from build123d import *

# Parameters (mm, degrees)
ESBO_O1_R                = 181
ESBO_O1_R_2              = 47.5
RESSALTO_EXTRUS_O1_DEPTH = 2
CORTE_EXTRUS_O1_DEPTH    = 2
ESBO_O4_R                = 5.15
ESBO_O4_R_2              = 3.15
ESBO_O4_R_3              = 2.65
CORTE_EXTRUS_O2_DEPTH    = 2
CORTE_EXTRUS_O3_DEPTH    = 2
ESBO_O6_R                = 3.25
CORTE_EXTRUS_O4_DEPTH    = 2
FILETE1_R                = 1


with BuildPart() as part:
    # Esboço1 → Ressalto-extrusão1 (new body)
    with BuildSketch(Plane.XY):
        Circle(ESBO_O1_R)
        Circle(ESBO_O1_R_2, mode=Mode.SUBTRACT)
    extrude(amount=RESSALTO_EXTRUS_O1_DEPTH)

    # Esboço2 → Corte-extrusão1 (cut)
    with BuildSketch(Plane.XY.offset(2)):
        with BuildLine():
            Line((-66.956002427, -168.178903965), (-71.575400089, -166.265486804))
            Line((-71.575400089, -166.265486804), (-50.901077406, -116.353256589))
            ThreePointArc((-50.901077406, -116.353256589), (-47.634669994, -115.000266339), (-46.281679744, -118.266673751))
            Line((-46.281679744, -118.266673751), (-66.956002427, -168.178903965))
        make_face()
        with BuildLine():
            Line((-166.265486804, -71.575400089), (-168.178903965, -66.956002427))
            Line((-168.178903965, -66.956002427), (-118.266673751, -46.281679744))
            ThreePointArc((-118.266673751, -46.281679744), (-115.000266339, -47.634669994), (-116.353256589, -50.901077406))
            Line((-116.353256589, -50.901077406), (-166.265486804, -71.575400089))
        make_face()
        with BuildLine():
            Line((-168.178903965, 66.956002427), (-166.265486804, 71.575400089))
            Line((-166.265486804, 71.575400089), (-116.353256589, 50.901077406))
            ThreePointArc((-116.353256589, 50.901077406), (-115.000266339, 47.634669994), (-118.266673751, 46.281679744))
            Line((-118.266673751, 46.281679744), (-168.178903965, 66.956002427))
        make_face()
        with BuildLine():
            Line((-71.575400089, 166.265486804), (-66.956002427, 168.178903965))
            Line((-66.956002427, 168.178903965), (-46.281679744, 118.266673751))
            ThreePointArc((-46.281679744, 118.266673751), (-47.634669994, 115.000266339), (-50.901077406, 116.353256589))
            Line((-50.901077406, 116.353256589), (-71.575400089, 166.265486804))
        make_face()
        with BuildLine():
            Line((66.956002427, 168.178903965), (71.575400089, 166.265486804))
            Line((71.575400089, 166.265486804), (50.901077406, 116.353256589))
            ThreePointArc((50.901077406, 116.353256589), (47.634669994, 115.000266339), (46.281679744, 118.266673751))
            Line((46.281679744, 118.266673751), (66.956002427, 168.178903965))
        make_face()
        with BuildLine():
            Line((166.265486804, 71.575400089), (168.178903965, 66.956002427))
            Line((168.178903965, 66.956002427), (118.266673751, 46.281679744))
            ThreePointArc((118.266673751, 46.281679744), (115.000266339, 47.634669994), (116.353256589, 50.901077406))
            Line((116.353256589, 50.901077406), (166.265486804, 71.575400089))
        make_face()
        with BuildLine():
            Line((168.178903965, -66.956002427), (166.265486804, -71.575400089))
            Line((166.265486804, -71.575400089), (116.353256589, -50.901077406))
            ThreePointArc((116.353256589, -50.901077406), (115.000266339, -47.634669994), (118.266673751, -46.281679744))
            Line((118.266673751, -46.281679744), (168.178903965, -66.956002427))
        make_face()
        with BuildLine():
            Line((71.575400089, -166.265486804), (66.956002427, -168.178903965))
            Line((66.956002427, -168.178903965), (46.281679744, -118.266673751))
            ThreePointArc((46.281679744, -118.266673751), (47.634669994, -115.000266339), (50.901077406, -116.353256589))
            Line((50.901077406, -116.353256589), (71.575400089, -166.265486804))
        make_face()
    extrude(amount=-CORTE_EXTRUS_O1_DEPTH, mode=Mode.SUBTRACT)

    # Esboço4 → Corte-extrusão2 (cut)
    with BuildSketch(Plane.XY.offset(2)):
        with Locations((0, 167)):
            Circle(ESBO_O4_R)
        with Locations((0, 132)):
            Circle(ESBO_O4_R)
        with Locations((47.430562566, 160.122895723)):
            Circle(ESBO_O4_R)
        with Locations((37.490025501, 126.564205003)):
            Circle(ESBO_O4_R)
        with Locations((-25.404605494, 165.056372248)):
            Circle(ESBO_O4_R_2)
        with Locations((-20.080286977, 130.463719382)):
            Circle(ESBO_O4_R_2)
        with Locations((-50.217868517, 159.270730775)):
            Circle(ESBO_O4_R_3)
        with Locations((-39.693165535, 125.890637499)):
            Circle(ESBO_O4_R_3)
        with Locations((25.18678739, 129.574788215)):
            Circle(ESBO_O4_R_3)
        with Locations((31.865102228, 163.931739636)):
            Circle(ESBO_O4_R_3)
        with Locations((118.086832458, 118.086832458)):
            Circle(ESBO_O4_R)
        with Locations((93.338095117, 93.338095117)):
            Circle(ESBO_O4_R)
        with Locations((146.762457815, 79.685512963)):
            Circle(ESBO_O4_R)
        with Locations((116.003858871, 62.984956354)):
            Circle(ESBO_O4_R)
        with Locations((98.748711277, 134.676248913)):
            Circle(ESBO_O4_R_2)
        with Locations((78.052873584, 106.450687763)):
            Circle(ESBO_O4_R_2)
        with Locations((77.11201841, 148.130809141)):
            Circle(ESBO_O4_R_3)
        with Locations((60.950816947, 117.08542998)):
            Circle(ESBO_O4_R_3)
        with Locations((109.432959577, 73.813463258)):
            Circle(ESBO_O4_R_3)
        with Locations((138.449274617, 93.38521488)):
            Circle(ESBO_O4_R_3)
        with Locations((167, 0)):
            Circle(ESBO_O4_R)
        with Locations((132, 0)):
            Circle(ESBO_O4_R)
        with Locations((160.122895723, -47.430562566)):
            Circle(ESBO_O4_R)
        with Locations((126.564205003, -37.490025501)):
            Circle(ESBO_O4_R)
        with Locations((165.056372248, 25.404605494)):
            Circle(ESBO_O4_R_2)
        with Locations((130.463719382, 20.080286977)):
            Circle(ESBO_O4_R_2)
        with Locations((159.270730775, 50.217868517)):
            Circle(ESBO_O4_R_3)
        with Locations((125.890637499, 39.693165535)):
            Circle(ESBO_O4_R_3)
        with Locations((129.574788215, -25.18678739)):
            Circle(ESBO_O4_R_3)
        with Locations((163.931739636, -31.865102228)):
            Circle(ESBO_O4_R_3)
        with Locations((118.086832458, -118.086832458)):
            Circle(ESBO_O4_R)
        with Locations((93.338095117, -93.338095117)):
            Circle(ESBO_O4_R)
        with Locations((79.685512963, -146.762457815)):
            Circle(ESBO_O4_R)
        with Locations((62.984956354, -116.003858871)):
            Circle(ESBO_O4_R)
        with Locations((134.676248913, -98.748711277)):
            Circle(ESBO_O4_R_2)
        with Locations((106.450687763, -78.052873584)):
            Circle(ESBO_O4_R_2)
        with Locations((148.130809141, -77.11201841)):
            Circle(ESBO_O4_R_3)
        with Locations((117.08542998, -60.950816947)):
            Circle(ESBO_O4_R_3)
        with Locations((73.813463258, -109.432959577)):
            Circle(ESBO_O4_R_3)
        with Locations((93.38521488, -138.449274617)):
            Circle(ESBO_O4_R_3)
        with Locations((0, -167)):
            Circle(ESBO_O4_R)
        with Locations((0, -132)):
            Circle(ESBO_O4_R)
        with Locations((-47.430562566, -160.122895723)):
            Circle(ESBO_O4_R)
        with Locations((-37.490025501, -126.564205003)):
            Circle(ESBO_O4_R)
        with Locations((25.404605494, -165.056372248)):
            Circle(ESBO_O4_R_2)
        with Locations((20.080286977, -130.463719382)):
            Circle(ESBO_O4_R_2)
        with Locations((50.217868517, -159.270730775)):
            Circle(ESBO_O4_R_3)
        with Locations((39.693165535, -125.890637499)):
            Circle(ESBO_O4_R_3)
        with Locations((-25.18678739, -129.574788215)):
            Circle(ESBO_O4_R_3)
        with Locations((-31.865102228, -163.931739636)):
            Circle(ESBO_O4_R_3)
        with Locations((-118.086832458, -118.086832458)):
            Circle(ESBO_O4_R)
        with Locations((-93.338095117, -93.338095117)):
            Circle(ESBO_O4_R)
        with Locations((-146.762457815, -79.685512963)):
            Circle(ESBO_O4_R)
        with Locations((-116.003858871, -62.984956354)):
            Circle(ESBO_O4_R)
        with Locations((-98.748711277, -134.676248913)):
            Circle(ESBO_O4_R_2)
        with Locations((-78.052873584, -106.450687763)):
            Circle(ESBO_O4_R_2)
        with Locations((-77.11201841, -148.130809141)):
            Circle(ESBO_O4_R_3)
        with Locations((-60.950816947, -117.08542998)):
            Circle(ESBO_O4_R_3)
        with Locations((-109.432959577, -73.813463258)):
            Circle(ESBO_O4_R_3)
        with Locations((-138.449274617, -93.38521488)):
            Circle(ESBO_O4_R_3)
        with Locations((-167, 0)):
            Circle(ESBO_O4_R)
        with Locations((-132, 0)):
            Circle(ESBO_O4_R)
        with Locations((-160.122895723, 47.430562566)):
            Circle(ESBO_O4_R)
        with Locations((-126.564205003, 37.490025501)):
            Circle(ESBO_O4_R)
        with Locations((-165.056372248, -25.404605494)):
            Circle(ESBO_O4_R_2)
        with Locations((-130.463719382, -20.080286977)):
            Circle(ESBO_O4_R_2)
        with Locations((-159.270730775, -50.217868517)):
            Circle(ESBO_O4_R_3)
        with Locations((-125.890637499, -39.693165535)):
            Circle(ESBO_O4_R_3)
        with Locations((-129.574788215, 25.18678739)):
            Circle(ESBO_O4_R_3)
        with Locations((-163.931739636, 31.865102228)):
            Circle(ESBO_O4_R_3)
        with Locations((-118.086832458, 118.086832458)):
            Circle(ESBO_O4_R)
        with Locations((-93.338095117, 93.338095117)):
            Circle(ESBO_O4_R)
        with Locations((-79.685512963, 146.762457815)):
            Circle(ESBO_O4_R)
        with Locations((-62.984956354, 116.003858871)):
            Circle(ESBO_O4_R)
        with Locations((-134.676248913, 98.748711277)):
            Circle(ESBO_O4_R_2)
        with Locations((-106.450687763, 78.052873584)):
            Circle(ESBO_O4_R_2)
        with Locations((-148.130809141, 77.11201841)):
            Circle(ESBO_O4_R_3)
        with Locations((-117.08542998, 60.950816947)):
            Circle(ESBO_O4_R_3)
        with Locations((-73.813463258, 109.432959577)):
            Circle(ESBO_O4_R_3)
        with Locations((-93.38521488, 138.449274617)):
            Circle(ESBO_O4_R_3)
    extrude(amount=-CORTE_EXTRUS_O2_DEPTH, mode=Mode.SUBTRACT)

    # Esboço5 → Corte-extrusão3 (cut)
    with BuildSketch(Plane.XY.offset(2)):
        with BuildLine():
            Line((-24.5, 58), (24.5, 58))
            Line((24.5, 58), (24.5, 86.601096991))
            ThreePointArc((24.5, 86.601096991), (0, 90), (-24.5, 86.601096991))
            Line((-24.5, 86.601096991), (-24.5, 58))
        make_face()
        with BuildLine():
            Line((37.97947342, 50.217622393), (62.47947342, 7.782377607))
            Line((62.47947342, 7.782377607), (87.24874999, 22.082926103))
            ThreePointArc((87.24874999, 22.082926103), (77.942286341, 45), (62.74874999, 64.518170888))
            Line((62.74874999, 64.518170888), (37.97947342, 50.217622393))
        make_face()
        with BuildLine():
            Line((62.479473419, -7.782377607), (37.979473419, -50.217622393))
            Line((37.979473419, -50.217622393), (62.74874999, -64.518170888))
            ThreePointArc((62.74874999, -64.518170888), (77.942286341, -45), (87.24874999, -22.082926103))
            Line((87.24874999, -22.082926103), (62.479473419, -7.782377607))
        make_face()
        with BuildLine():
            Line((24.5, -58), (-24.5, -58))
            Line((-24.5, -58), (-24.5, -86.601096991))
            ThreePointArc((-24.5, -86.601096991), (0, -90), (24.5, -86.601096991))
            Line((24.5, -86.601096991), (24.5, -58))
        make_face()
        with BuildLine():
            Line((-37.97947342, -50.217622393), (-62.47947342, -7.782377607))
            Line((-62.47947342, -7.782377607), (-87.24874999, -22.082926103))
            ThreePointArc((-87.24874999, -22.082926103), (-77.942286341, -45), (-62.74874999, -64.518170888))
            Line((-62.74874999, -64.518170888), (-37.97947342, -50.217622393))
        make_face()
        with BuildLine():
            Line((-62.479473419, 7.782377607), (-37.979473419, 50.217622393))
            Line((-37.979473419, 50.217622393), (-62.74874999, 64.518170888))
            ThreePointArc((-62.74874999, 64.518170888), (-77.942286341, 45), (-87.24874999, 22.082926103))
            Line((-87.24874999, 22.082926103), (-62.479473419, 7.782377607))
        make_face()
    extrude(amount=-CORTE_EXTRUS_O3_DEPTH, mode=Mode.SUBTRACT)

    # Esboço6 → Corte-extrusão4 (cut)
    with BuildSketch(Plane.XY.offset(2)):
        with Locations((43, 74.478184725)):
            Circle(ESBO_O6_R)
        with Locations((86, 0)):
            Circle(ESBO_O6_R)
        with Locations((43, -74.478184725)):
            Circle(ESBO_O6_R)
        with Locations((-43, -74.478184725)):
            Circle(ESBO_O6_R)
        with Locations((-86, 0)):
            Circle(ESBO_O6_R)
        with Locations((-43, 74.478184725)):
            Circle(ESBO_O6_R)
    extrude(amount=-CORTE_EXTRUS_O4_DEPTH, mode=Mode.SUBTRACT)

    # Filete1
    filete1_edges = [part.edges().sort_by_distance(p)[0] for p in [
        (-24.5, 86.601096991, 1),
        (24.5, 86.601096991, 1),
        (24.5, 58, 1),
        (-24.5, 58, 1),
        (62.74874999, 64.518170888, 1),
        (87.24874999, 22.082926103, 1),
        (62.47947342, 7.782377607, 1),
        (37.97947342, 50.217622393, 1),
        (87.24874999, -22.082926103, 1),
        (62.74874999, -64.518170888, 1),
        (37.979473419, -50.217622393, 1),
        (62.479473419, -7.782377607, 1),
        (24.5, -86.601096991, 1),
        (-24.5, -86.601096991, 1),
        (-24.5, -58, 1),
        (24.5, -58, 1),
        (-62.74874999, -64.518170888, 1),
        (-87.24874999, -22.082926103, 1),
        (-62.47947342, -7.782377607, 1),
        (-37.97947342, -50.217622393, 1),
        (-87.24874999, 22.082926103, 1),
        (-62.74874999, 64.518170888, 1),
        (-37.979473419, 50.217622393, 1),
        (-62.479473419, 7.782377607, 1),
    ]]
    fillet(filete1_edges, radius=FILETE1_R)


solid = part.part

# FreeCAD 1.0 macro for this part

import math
import FreeCAD as App
import Part
import Sketcher
from FreeCAD import Vector
Q = App.Units.Quantity


def edges_at(feature, points):
    """Names of the edges that pass closest to the given points."""
    edges = feature.Shape.Edges
    near = lambda p: min(range(len(edges)), key=lambda i: edges[i].distToShape(Part.Vertex(*p))[0])
    return sorted({f"Edge{near(p) + 1}" for p in points})

doc = App.newDocument("Part")
body = doc.addObject("PartDesign::Body", "Body")

sketch1 = body.newObject("Sketcher::SketchObject", "Sketch")
sketch1.AttachmentSupport = (doc.getObject("XY_Plane"), [""])
sketch1.MapMode = "FlatFace"
sketch1.addGeometry(Part.Circle(Vector(0, 0, 0), Vector(0, 0, 1), 181), False)
sketch1.addGeometry(Part.Circle(Vector(0, 0, 0), Vector(0, 0, 1), 48), False)
sketch1.addConstraint(Sketcher.Constraint("Coincident", 0, 3, -1, 1))
sketch1.addConstraint(Sketcher.Constraint("Coincident", 1, 3, -1, 1))
sketch1.addConstraint(Sketcher.Constraint("Diameter", 0, Q("362 mm")))
sketch1.addConstraint(Sketcher.Constraint("Diameter", 1, Q("95 mm")))
pad1 = body.newObject("PartDesign::Pad", "Pad")
pad1.Profile = sketch1
pad1.Length = 2

sketch2 = body.newObject("Sketcher::SketchObject", "Sketch001")
sketch2.AttachmentSupport = (doc.getObject("XY_Plane"), [""])
sketch2.MapMode = "FlatFace"
sketch2.AttachmentOffset = App.Placement(Vector(0, 0, 2), App.Rotation())
sketch2.addGeometry(Part.LineSegment(Vector(-71.6, -166.3, 0), Vector(-67, -168.2, 0)), False)
sketch2.addGeometry(Part.LineSegment(Vector(-67, -168.2, 0), Vector(-46.3, -118.3, 0)), False)
sketch2.addGeometry(Part.ArcOfCircle(Part.Circle(Vector(-48.6, -117.3, 0), Vector(0, 0, 1), 2.5), math.radians(-23), math.radians(157)), False)
sketch2.addGeometry(Part.LineSegment(Vector(-50.9, -116.4, 0), Vector(-71.6, -166.3, 0)), False)
sketch2.addGeometry(Part.LineSegment(Vector(-168.2, -67, 0), Vector(-166.3, -71.6, 0)), False)
sketch2.addGeometry(Part.LineSegment(Vector(-166.3, -71.6, 0), Vector(-116.4, -50.9, 0)), False)
sketch2.addGeometry(Part.ArcOfCircle(Part.Circle(Vector(-117.3, -48.6, 0), Vector(0, 0, 1), 2.5), math.radians(-67), math.radians(113)), False)
sketch2.addGeometry(Part.LineSegment(Vector(-118.3, -46.3, 0), Vector(-168.2, -67, 0)), False)
sketch2.addGeometry(Part.LineSegment(Vector(-166.3, 71.6, 0), Vector(-168.2, 67, 0)), False)
sketch2.addGeometry(Part.LineSegment(Vector(-168.2, 67, 0), Vector(-118.3, 46.3, 0)), False)
sketch2.addGeometry(Part.ArcOfCircle(Part.Circle(Vector(-117.3, 48.6, 0), Vector(0, 0, 1), 2.5), math.radians(-113), math.radians(67)), False)
sketch2.addGeometry(Part.LineSegment(Vector(-116.4, 50.9, 0), Vector(-166.3, 71.6, 0)), False)
sketch2.addGeometry(Part.LineSegment(Vector(-67, 168.2, 0), Vector(-71.6, 166.3, 0)), False)
sketch2.addGeometry(Part.LineSegment(Vector(-71.6, 166.3, 0), Vector(-50.9, 116.4, 0)), False)
sketch2.addGeometry(Part.ArcOfCircle(Part.Circle(Vector(-48.6, 117.3, 0), Vector(0, 0, 1), 2.5), math.radians(-157), math.radians(23)), False)
sketch2.addGeometry(Part.LineSegment(Vector(-46.3, 118.3, 0), Vector(-67, 168.2, 0)), False)
sketch2.addGeometry(Part.LineSegment(Vector(71.6, 166.3, 0), Vector(67, 168.2, 0)), False)
sketch2.addGeometry(Part.LineSegment(Vector(67, 168.2, 0), Vector(46.3, 118.3, 0)), False)
sketch2.addGeometry(Part.ArcOfCircle(Part.Circle(Vector(48.6, 117.3, 0), Vector(0, 0, 1), 2.5), math.radians(157), math.radians(337)), False)
sketch2.addGeometry(Part.LineSegment(Vector(50.9, 116.4, 0), Vector(71.6, 166.3, 0)), False)
sketch2.addGeometry(Part.LineSegment(Vector(168.2, 67, 0), Vector(166.3, 71.6, 0)), False)
sketch2.addGeometry(Part.LineSegment(Vector(166.3, 71.6, 0), Vector(116.4, 50.9, 0)), False)
sketch2.addGeometry(Part.ArcOfCircle(Part.Circle(Vector(117.3, 48.6, 0), Vector(0, 0, 1), 2.5), math.radians(113), math.radians(293)), False)
sketch2.addGeometry(Part.LineSegment(Vector(118.3, 46.3, 0), Vector(168.2, 67, 0)), False)
sketch2.addGeometry(Part.LineSegment(Vector(166.3, -71.6, 0), Vector(168.2, -67, 0)), False)
sketch2.addGeometry(Part.LineSegment(Vector(168.2, -67, 0), Vector(118.3, -46.3, 0)), False)
sketch2.addGeometry(Part.ArcOfCircle(Part.Circle(Vector(117.3, -48.6, 0), Vector(0, 0, 1), 2.5), math.radians(67), math.radians(247)), False)
sketch2.addGeometry(Part.LineSegment(Vector(116.4, -50.9, 0), Vector(166.3, -71.6, 0)), False)
sketch2.addGeometry(Part.LineSegment(Vector(67, -168.2, 0), Vector(71.6, -166.3, 0)), False)
sketch2.addGeometry(Part.LineSegment(Vector(71.6, -166.3, 0), Vector(50.9, -116.4, 0)), False)
sketch2.addGeometry(Part.ArcOfCircle(Part.Circle(Vector(48.6, -117.3, 0), Vector(0, 0, 1), 2.5), math.radians(23), math.radians(203)), False)
sketch2.addGeometry(Part.LineSegment(Vector(46.3, -118.3, 0), Vector(67, -168.2, 0)), False)
sketch2.addConstraint(Sketcher.Constraint("Coincident", 0, 2, 1, 1))
sketch2.addConstraint(Sketcher.Constraint("Tangent", 1, 2, 2, 1))
sketch2.addConstraint(Sketcher.Constraint("Tangent", 2, 2, 3, 1))
sketch2.addConstraint(Sketcher.Constraint("Coincident", 3, 2, 0, 1))
sketch2.addConstraint(Sketcher.Constraint("Coincident", 4, 2, 5, 1))
sketch2.addConstraint(Sketcher.Constraint("Tangent", 5, 2, 6, 1))
sketch2.addConstraint(Sketcher.Constraint("Tangent", 6, 2, 7, 1))
sketch2.addConstraint(Sketcher.Constraint("Coincident", 7, 2, 4, 1))
sketch2.addConstraint(Sketcher.Constraint("Coincident", 8, 2, 9, 1))
sketch2.addConstraint(Sketcher.Constraint("Tangent", 9, 2, 10, 1))
sketch2.addConstraint(Sketcher.Constraint("Tangent", 10, 2, 11, 1))
sketch2.addConstraint(Sketcher.Constraint("Coincident", 11, 2, 8, 1))
sketch2.addConstraint(Sketcher.Constraint("Coincident", 12, 2, 13, 1))
sketch2.addConstraint(Sketcher.Constraint("Tangent", 13, 2, 14, 1))
sketch2.addConstraint(Sketcher.Constraint("Tangent", 14, 2, 15, 1))
sketch2.addConstraint(Sketcher.Constraint("Coincident", 15, 2, 12, 1))
sketch2.addConstraint(Sketcher.Constraint("Coincident", 16, 2, 17, 1))
sketch2.addConstraint(Sketcher.Constraint("Tangent", 17, 2, 18, 1))
sketch2.addConstraint(Sketcher.Constraint("Tangent", 18, 2, 19, 1))
sketch2.addConstraint(Sketcher.Constraint("Coincident", 19, 2, 16, 1))
sketch2.addConstraint(Sketcher.Constraint("Coincident", 20, 2, 21, 1))
sketch2.addConstraint(Sketcher.Constraint("Tangent", 21, 2, 22, 1))
sketch2.addConstraint(Sketcher.Constraint("Tangent", 22, 2, 23, 1))
sketch2.addConstraint(Sketcher.Constraint("Coincident", 23, 2, 20, 1))
sketch2.addConstraint(Sketcher.Constraint("Coincident", 24, 2, 25, 1))
sketch2.addConstraint(Sketcher.Constraint("Tangent", 25, 2, 26, 1))
sketch2.addConstraint(Sketcher.Constraint("Tangent", 26, 2, 27, 1))
sketch2.addConstraint(Sketcher.Constraint("Coincident", 27, 2, 24, 1))
sketch2.addConstraint(Sketcher.Constraint("Coincident", 28, 2, 29, 1))
sketch2.addConstraint(Sketcher.Constraint("Tangent", 29, 2, 30, 1))
sketch2.addConstraint(Sketcher.Constraint("Tangent", 30, 2, 31, 1))
sketch2.addConstraint(Sketcher.Constraint("Coincident", 31, 2, 28, 1))
sketch2.addConstraint(Sketcher.Constraint("Equal", 2, 6))
sketch2.addConstraint(Sketcher.Constraint("Equal", 6, 10))
sketch2.addConstraint(Sketcher.Constraint("Equal", 10, 14))
sketch2.addConstraint(Sketcher.Constraint("Equal", 14, 18))
sketch2.addConstraint(Sketcher.Constraint("Equal", 18, 22))
sketch2.addConstraint(Sketcher.Constraint("Equal", 22, 26))
sketch2.addConstraint(Sketcher.Constraint("Equal", 26, 30))
sketch2.addConstraint(Sketcher.Constraint("Symmetric", 2, 3, 18, 3, -1, 1))
sketch2.addConstraint(Sketcher.Constraint("Symmetric", 6, 3, 22, 3, -1, 1))
sketch2.addConstraint(Sketcher.Constraint("Symmetric", 10, 3, 26, 3, -1, 1))
sketch2.addConstraint(Sketcher.Constraint("Symmetric", 14, 3, 30, 3, -1, 1))
sketch2.addConstraint(Sketcher.Constraint("Symmetric", 0, 2, 16, 2, -1, 1))
sketch2.addConstraint(Sketcher.Constraint("Symmetric", 3, 2, 19, 2, -1, 1))
sketch2.addConstraint(Sketcher.Constraint("Symmetric", 4, 2, 20, 2, -1, 1))
sketch2.addConstraint(Sketcher.Constraint("Symmetric", 7, 2, 23, 2, -1, 1))
sketch2.addConstraint(Sketcher.Constraint("Symmetric", 8, 2, 24, 2, -1, 1))
sketch2.addConstraint(Sketcher.Constraint("Symmetric", 11, 2, 27, 2, -1, 1))
sketch2.addConstraint(Sketcher.Constraint("Symmetric", 12, 2, 28, 2, -1, 1))
sketch2.addConstraint(Sketcher.Constraint("Symmetric", 15, 2, 31, 2, -1, 1))
sketch2.addConstraint(Sketcher.Constraint("Symmetric", 14, 3, 18, 3, -2))
sketch2.addConstraint(Sketcher.Constraint("Symmetric", 10, 3, 22, 3, -2))
sketch2.addConstraint(Sketcher.Constraint("Symmetric", 15, 2, 16, 2, -2))
sketch2.addConstraint(Sketcher.Constraint("Symmetric", 12, 2, 19, 2, -2))
sketch2.addConstraint(Sketcher.Constraint("Symmetric", 11, 2, 20, 2, -2))
sketch2.addConstraint(Sketcher.Constraint("Symmetric", 8, 2, 23, 2, -2))
sketch2.addConstraint(Sketcher.Constraint("Perpendicular", 0, 1))
sketch2.addConstraint(Sketcher.Constraint("Parallel", 1, 3))
sketch2.addConstraint(Sketcher.Constraint("Perpendicular", 4, 5))
sketch2.addConstraint(Sketcher.Constraint("Parallel", 5, 7))
sketch2.addConstraint(Sketcher.Constraint("Parallel", 3, 8))
sketch2.addConstraint(Sketcher.Constraint("Equal", 3, 5))
sketch2.addConstraint(Sketcher.Constraint("Radius", 2, Q("2.5 mm")))
sketch2.addConstraint(Sketcher.Constraint("Angle", 0, Q("-22.5 deg")))
sketch2.addConstraint(Sketcher.Constraint("DistanceX", 3, 2, -1, 1, Q("71.5754 mm")))
sketch2.addConstraint(Sketcher.Constraint("DistanceY", 4, 2, -1, 1, Q("71.5754 mm")))
sketch2.addConstraint(Sketcher.Constraint("Distance", 1, Q("54.024609 mm")))
sketch2.addConstraint(Sketcher.Constraint("DistanceY", 2, 3, 14, 3, Q("234.61993 mm")))
sketch2.addConstraint(Sketcher.Constraint("DistanceX", 10, 3, 22, 3, Q("234.61993 mm")))
pocket1 = body.newObject("PartDesign::Pocket", "Pocket")
pocket1.Profile = sketch2
pocket1.Length = 2

sketch3 = body.newObject("Sketcher::SketchObject", "Sketch002")
sketch3.AttachmentSupport = (doc.getObject("XY_Plane"), [""])
sketch3.MapMode = "FlatFace"
sketch3.AttachmentOffset = App.Placement(Vector(0, 0, 2), App.Rotation())
sketch3.addGeometry(Part.Circle(Vector(0, 167, 0), Vector(0, 0, 1), 5.2), False)
sketch3.addGeometry(Part.Circle(Vector(0, 132, 0), Vector(0, 0, 1), 5.2), False)
sketch3.addGeometry(Part.Circle(Vector(47.4, 160.1, 0), Vector(0, 0, 1), 5.2), False)
sketch3.addGeometry(Part.Circle(Vector(37.5, 126.6, 0), Vector(0, 0, 1), 5.2), False)
sketch3.addGeometry(Part.Circle(Vector(-25.4, 165.1, 0), Vector(0, 0, 1), 3.1), False)
sketch3.addGeometry(Part.Circle(Vector(-20.1, 130.5, 0), Vector(0, 0, 1), 3.1), False)
sketch3.addGeometry(Part.Circle(Vector(-50.2, 159.3, 0), Vector(0, 0, 1), 2.6), False)
sketch3.addGeometry(Part.Circle(Vector(-39.7, 125.9, 0), Vector(0, 0, 1), 2.6), False)
sketch3.addGeometry(Part.Circle(Vector(25.2, 129.6, 0), Vector(0, 0, 1), 2.6), False)
sketch3.addGeometry(Part.Circle(Vector(31.9, 163.9, 0), Vector(0, 0, 1), 2.6), False)
sketch3.addGeometry(Part.Circle(Vector(118.1, 118.1, 0), Vector(0, 0, 1), 5.2), False)
sketch3.addGeometry(Part.Circle(Vector(93.3, 93.3, 0), Vector(0, 0, 1), 5.2), False)
sketch3.addGeometry(Part.Circle(Vector(146.8, 79.7, 0), Vector(0, 0, 1), 5.2), False)
sketch3.addGeometry(Part.Circle(Vector(116, 63, 0), Vector(0, 0, 1), 5.2), False)
sketch3.addGeometry(Part.Circle(Vector(98.7, 134.7, 0), Vector(0, 0, 1), 3.1), False)
sketch3.addGeometry(Part.Circle(Vector(78.1, 106.5, 0), Vector(0, 0, 1), 3.1), False)
sketch3.addGeometry(Part.Circle(Vector(77.1, 148.1, 0), Vector(0, 0, 1), 2.6), False)
sketch3.addGeometry(Part.Circle(Vector(61, 117.1, 0), Vector(0, 0, 1), 2.6), False)
sketch3.addGeometry(Part.Circle(Vector(109.4, 73.8, 0), Vector(0, 0, 1), 2.6), False)
sketch3.addGeometry(Part.Circle(Vector(138.4, 93.4, 0), Vector(0, 0, 1), 2.6), False)
sketch3.addGeometry(Part.Circle(Vector(167, 0, 0), Vector(0, 0, 1), 5.2), False)
sketch3.addGeometry(Part.Circle(Vector(132, 0, 0), Vector(0, 0, 1), 5.2), False)
sketch3.addGeometry(Part.Circle(Vector(160.1, -47.4, 0), Vector(0, 0, 1), 5.2), False)
sketch3.addGeometry(Part.Circle(Vector(126.6, -37.5, 0), Vector(0, 0, 1), 5.2), False)
sketch3.addGeometry(Part.Circle(Vector(165.1, 25.4, 0), Vector(0, 0, 1), 3.1), False)
sketch3.addGeometry(Part.Circle(Vector(130.5, 20.1, 0), Vector(0, 0, 1), 3.1), False)
sketch3.addGeometry(Part.Circle(Vector(159.3, 50.2, 0), Vector(0, 0, 1), 2.6), False)
sketch3.addGeometry(Part.Circle(Vector(125.9, 39.7, 0), Vector(0, 0, 1), 2.6), False)
sketch3.addGeometry(Part.Circle(Vector(129.6, -25.2, 0), Vector(0, 0, 1), 2.6), False)
sketch3.addGeometry(Part.Circle(Vector(163.9, -31.9, 0), Vector(0, 0, 1), 2.6), False)
sketch3.addGeometry(Part.Circle(Vector(118.1, -118.1, 0), Vector(0, 0, 1), 5.2), False)
sketch3.addGeometry(Part.Circle(Vector(93.3, -93.3, 0), Vector(0, 0, 1), 5.2), False)
sketch3.addGeometry(Part.Circle(Vector(79.7, -146.8, 0), Vector(0, 0, 1), 5.2), False)
sketch3.addGeometry(Part.Circle(Vector(63, -116, 0), Vector(0, 0, 1), 5.2), False)
sketch3.addGeometry(Part.Circle(Vector(134.7, -98.7, 0), Vector(0, 0, 1), 3.1), False)
sketch3.addGeometry(Part.Circle(Vector(106.5, -78.1, 0), Vector(0, 0, 1), 3.1), False)
sketch3.addGeometry(Part.Circle(Vector(148.1, -77.1, 0), Vector(0, 0, 1), 2.6), False)
sketch3.addGeometry(Part.Circle(Vector(117.1, -61, 0), Vector(0, 0, 1), 2.6), False)
sketch3.addGeometry(Part.Circle(Vector(73.8, -109.4, 0), Vector(0, 0, 1), 2.6), False)
sketch3.addGeometry(Part.Circle(Vector(93.4, -138.4, 0), Vector(0, 0, 1), 2.6), False)
sketch3.addGeometry(Part.Circle(Vector(0, -167, 0), Vector(0, 0, 1), 5.2), False)
sketch3.addGeometry(Part.Circle(Vector(0, -132, 0), Vector(0, 0, 1), 5.2), False)
sketch3.addGeometry(Part.Circle(Vector(-47.4, -160.1, 0), Vector(0, 0, 1), 5.2), False)
sketch3.addGeometry(Part.Circle(Vector(-37.5, -126.6, 0), Vector(0, 0, 1), 5.2), False)
sketch3.addGeometry(Part.Circle(Vector(25.4, -165.1, 0), Vector(0, 0, 1), 3.1), False)
sketch3.addGeometry(Part.Circle(Vector(20.1, -130.5, 0), Vector(0, 0, 1), 3.1), False)
sketch3.addGeometry(Part.Circle(Vector(50.2, -159.3, 0), Vector(0, 0, 1), 2.6), False)
sketch3.addGeometry(Part.Circle(Vector(39.7, -125.9, 0), Vector(0, 0, 1), 2.6), False)
sketch3.addGeometry(Part.Circle(Vector(-25.2, -129.6, 0), Vector(0, 0, 1), 2.6), False)
sketch3.addGeometry(Part.Circle(Vector(-31.9, -163.9, 0), Vector(0, 0, 1), 2.6), False)
sketch3.addGeometry(Part.Circle(Vector(-118.1, -118.1, 0), Vector(0, 0, 1), 5.2), False)
sketch3.addGeometry(Part.Circle(Vector(-93.3, -93.3, 0), Vector(0, 0, 1), 5.2), False)
sketch3.addGeometry(Part.Circle(Vector(-146.8, -79.7, 0), Vector(0, 0, 1), 5.2), False)
sketch3.addGeometry(Part.Circle(Vector(-116, -63, 0), Vector(0, 0, 1), 5.2), False)
sketch3.addGeometry(Part.Circle(Vector(-98.7, -134.7, 0), Vector(0, 0, 1), 3.1), False)
sketch3.addGeometry(Part.Circle(Vector(-78.1, -106.5, 0), Vector(0, 0, 1), 3.1), False)
sketch3.addGeometry(Part.Circle(Vector(-77.1, -148.1, 0), Vector(0, 0, 1), 2.6), False)
sketch3.addGeometry(Part.Circle(Vector(-61, -117.1, 0), Vector(0, 0, 1), 2.6), False)
sketch3.addGeometry(Part.Circle(Vector(-109.4, -73.8, 0), Vector(0, 0, 1), 2.6), False)
sketch3.addGeometry(Part.Circle(Vector(-138.4, -93.4, 0), Vector(0, 0, 1), 2.6), False)
sketch3.addGeometry(Part.Circle(Vector(-167, 0, 0), Vector(0, 0, 1), 5.2), False)
sketch3.addGeometry(Part.Circle(Vector(-132, 0, 0), Vector(0, 0, 1), 5.2), False)
sketch3.addGeometry(Part.Circle(Vector(-160.1, 47.4, 0), Vector(0, 0, 1), 5.2), False)
sketch3.addGeometry(Part.Circle(Vector(-126.6, 37.5, 0), Vector(0, 0, 1), 5.2), False)
sketch3.addGeometry(Part.Circle(Vector(-165.1, -25.4, 0), Vector(0, 0, 1), 3.1), False)
sketch3.addGeometry(Part.Circle(Vector(-130.5, -20.1, 0), Vector(0, 0, 1), 3.1), False)
sketch3.addGeometry(Part.Circle(Vector(-159.3, -50.2, 0), Vector(0, 0, 1), 2.6), False)
sketch3.addGeometry(Part.Circle(Vector(-125.9, -39.7, 0), Vector(0, 0, 1), 2.6), False)
sketch3.addGeometry(Part.Circle(Vector(-129.6, 25.2, 0), Vector(0, 0, 1), 2.6), False)
sketch3.addGeometry(Part.Circle(Vector(-163.9, 31.9, 0), Vector(0, 0, 1), 2.6), False)
sketch3.addGeometry(Part.Circle(Vector(-118.1, 118.1, 0), Vector(0, 0, 1), 5.2), False)
sketch3.addGeometry(Part.Circle(Vector(-93.3, 93.3, 0), Vector(0, 0, 1), 5.2), False)
sketch3.addGeometry(Part.Circle(Vector(-79.7, 146.8, 0), Vector(0, 0, 1), 5.2), False)
sketch3.addGeometry(Part.Circle(Vector(-63, 116, 0), Vector(0, 0, 1), 5.2), False)
sketch3.addGeometry(Part.Circle(Vector(-134.7, 98.7, 0), Vector(0, 0, 1), 3.1), False)
sketch3.addGeometry(Part.Circle(Vector(-106.5, 78.1, 0), Vector(0, 0, 1), 3.1), False)
sketch3.addGeometry(Part.Circle(Vector(-148.1, 77.1, 0), Vector(0, 0, 1), 2.6), False)
sketch3.addGeometry(Part.Circle(Vector(-117.1, 61, 0), Vector(0, 0, 1), 2.6), False)
sketch3.addGeometry(Part.Circle(Vector(-73.8, 109.4, 0), Vector(0, 0, 1), 2.6), False)
sketch3.addGeometry(Part.Circle(Vector(-93.4, 138.4, 0), Vector(0, 0, 1), 2.6), False)
sketch3.addConstraint(Sketcher.Constraint("Equal", 0, 1))
sketch3.addConstraint(Sketcher.Constraint("Equal", 1, 2))
sketch3.addConstraint(Sketcher.Constraint("Equal", 2, 3))
sketch3.addConstraint(Sketcher.Constraint("Equal", 4, 5))
sketch3.addConstraint(Sketcher.Constraint("Equal", 6, 7))
sketch3.addConstraint(Sketcher.Constraint("Equal", 7, 8))
sketch3.addConstraint(Sketcher.Constraint("Equal", 8, 9))
sketch3.addConstraint(Sketcher.Constraint("Equal", 3, 10))
sketch3.addConstraint(Sketcher.Constraint("Equal", 10, 11))
sketch3.addConstraint(Sketcher.Constraint("Equal", 11, 12))
sketch3.addConstraint(Sketcher.Constraint("Equal", 12, 13))
sketch3.addConstraint(Sketcher.Constraint("Equal", 5, 14))
sketch3.addConstraint(Sketcher.Constraint("Equal", 14, 15))
sketch3.addConstraint(Sketcher.Constraint("Equal", 9, 16))
sketch3.addConstraint(Sketcher.Constraint("Equal", 16, 17))
sketch3.addConstraint(Sketcher.Constraint("Equal", 17, 18))
sketch3.addConstraint(Sketcher.Constraint("Equal", 18, 19))
sketch3.addConstraint(Sketcher.Constraint("Equal", 13, 20))
sketch3.addConstraint(Sketcher.Constraint("Equal", 20, 21))
sketch3.addConstraint(Sketcher.Constraint("Equal", 21, 22))
sketch3.addConstraint(Sketcher.Constraint("Equal", 22, 23))
sketch3.addConstraint(Sketcher.Constraint("Equal", 15, 24))
sketch3.addConstraint(Sketcher.Constraint("Equal", 24, 25))
sketch3.addConstraint(Sketcher.Constraint("Equal", 19, 26))
sketch3.addConstraint(Sketcher.Constraint("Equal", 26, 27))
sketch3.addConstraint(Sketcher.Constraint("Equal", 27, 28))
sketch3.addConstraint(Sketcher.Constraint("Equal", 28, 29))
sketch3.addConstraint(Sketcher.Constraint("Equal", 23, 30))
sketch3.addConstraint(Sketcher.Constraint("Equal", 30, 31))
sketch3.addConstraint(Sketcher.Constraint("Equal", 31, 32))
sketch3.addConstraint(Sketcher.Constraint("Equal", 32, 33))
sketch3.addConstraint(Sketcher.Constraint("Equal", 25, 34))
sketch3.addConstraint(Sketcher.Constraint("Equal", 34, 35))
sketch3.addConstraint(Sketcher.Constraint("Equal", 29, 36))
sketch3.addConstraint(Sketcher.Constraint("Equal", 36, 37))
sketch3.addConstraint(Sketcher.Constraint("Equal", 37, 38))
sketch3.addConstraint(Sketcher.Constraint("Equal", 38, 39))
sketch3.addConstraint(Sketcher.Constraint("Equal", 33, 40))
sketch3.addConstraint(Sketcher.Constraint("Equal", 40, 41))
sketch3.addConstraint(Sketcher.Constraint("Equal", 41, 42))
sketch3.addConstraint(Sketcher.Constraint("Equal", 42, 43))
sketch3.addConstraint(Sketcher.Constraint("Equal", 35, 44))
sketch3.addConstraint(Sketcher.Constraint("Equal", 44, 45))
sketch3.addConstraint(Sketcher.Constraint("Equal", 39, 46))
sketch3.addConstraint(Sketcher.Constraint("Equal", 46, 47))
sketch3.addConstraint(Sketcher.Constraint("Equal", 47, 48))
sketch3.addConstraint(Sketcher.Constraint("Equal", 48, 49))
sketch3.addConstraint(Sketcher.Constraint("Equal", 43, 50))
sketch3.addConstraint(Sketcher.Constraint("Equal", 50, 51))
sketch3.addConstraint(Sketcher.Constraint("Equal", 51, 52))
sketch3.addConstraint(Sketcher.Constraint("Equal", 52, 53))
sketch3.addConstraint(Sketcher.Constraint("Equal", 45, 54))
sketch3.addConstraint(Sketcher.Constraint("Equal", 54, 55))
sketch3.addConstraint(Sketcher.Constraint("Equal", 49, 56))
sketch3.addConstraint(Sketcher.Constraint("Equal", 56, 57))
sketch3.addConstraint(Sketcher.Constraint("Equal", 57, 58))
sketch3.addConstraint(Sketcher.Constraint("Equal", 58, 59))
sketch3.addConstraint(Sketcher.Constraint("Equal", 53, 60))
sketch3.addConstraint(Sketcher.Constraint("Equal", 60, 61))
sketch3.addConstraint(Sketcher.Constraint("Equal", 61, 62))
sketch3.addConstraint(Sketcher.Constraint("Equal", 62, 63))
sketch3.addConstraint(Sketcher.Constraint("Equal", 55, 64))
sketch3.addConstraint(Sketcher.Constraint("Equal", 64, 65))
sketch3.addConstraint(Sketcher.Constraint("Equal", 59, 66))
sketch3.addConstraint(Sketcher.Constraint("Equal", 66, 67))
sketch3.addConstraint(Sketcher.Constraint("Equal", 67, 68))
sketch3.addConstraint(Sketcher.Constraint("Equal", 68, 69))
sketch3.addConstraint(Sketcher.Constraint("Equal", 63, 70))
sketch3.addConstraint(Sketcher.Constraint("Equal", 70, 71))
sketch3.addConstraint(Sketcher.Constraint("Equal", 71, 72))
sketch3.addConstraint(Sketcher.Constraint("Equal", 72, 73))
sketch3.addConstraint(Sketcher.Constraint("Equal", 65, 74))
sketch3.addConstraint(Sketcher.Constraint("Equal", 74, 75))
sketch3.addConstraint(Sketcher.Constraint("Equal", 69, 76))
sketch3.addConstraint(Sketcher.Constraint("Equal", 76, 77))
sketch3.addConstraint(Sketcher.Constraint("Equal", 77, 78))
sketch3.addConstraint(Sketcher.Constraint("Equal", 78, 79))
sketch3.addConstraint(Sketcher.Constraint("Symmetric", 0, 3, 40, 3, -1, 1))
sketch3.addConstraint(Sketcher.Constraint("Symmetric", 1, 3, 41, 3, -1, 1))
sketch3.addConstraint(Sketcher.Constraint("Symmetric", 2, 3, 42, 3, -1, 1))
sketch3.addConstraint(Sketcher.Constraint("Symmetric", 3, 3, 43, 3, -1, 1))
sketch3.addConstraint(Sketcher.Constraint("Symmetric", 4, 3, 44, 3, -1, 1))
sketch3.addConstraint(Sketcher.Constraint("Symmetric", 5, 3, 45, 3, -1, 1))
sketch3.addConstraint(Sketcher.Constraint("Symmetric", 6, 3, 46, 3, -1, 1))
sketch3.addConstraint(Sketcher.Constraint("Symmetric", 7, 3, 47, 3, -1, 1))
sketch3.addConstraint(Sketcher.Constraint("Symmetric", 8, 3, 48, 3, -1, 1))
sketch3.addConstraint(Sketcher.Constraint("Symmetric", 9, 3, 49, 3, -1, 1))
sketch3.addConstraint(Sketcher.Constraint("Symmetric", 10, 3, 50, 3, -1, 1))
sketch3.addConstraint(Sketcher.Constraint("Symmetric", 11, 3, 51, 3, -1, 1))
sketch3.addConstraint(Sketcher.Constraint("Symmetric", 12, 3, 52, 3, -1, 1))
sketch3.addConstraint(Sketcher.Constraint("Symmetric", 13, 3, 53, 3, -1, 1))
sketch3.addConstraint(Sketcher.Constraint("Symmetric", 14, 3, 54, 3, -1, 1))
sketch3.addConstraint(Sketcher.Constraint("Symmetric", 15, 3, 55, 3, -1, 1))
sketch3.addConstraint(Sketcher.Constraint("Symmetric", 16, 3, 56, 3, -1, 1))
sketch3.addConstraint(Sketcher.Constraint("Symmetric", 17, 3, 57, 3, -1, 1))
sketch3.addConstraint(Sketcher.Constraint("Symmetric", 18, 3, 58, 3, -1, 1))
sketch3.addConstraint(Sketcher.Constraint("Symmetric", 19, 3, 59, 3, -1, 1))
sketch3.addConstraint(Sketcher.Constraint("Symmetric", 20, 3, 60, 3, -1, 1))
sketch3.addConstraint(Sketcher.Constraint("Symmetric", 21, 3, 61, 3, -1, 1))
sketch3.addConstraint(Sketcher.Constraint("Symmetric", 22, 3, 62, 3, -1, 1))
sketch3.addConstraint(Sketcher.Constraint("Symmetric", 23, 3, 63, 3, -1, 1))
sketch3.addConstraint(Sketcher.Constraint("Symmetric", 24, 3, 64, 3, -1, 1))
sketch3.addConstraint(Sketcher.Constraint("Symmetric", 25, 3, 65, 3, -1, 1))
sketch3.addConstraint(Sketcher.Constraint("Symmetric", 26, 3, 66, 3, -1, 1))
sketch3.addConstraint(Sketcher.Constraint("Symmetric", 27, 3, 67, 3, -1, 1))
sketch3.addConstraint(Sketcher.Constraint("Symmetric", 28, 3, 68, 3, -1, 1))
sketch3.addConstraint(Sketcher.Constraint("Symmetric", 29, 3, 69, 3, -1, 1))
sketch3.addConstraint(Sketcher.Constraint("Symmetric", 30, 3, 70, 3, -1, 1))
sketch3.addConstraint(Sketcher.Constraint("Symmetric", 31, 3, 71, 3, -1, 1))
sketch3.addConstraint(Sketcher.Constraint("Symmetric", 32, 3, 72, 3, -1, 1))
sketch3.addConstraint(Sketcher.Constraint("Symmetric", 33, 3, 73, 3, -1, 1))
sketch3.addConstraint(Sketcher.Constraint("Symmetric", 34, 3, 74, 3, -1, 1))
sketch3.addConstraint(Sketcher.Constraint("Symmetric", 35, 3, 75, 3, -1, 1))
sketch3.addConstraint(Sketcher.Constraint("Symmetric", 36, 3, 76, 3, -1, 1))
sketch3.addConstraint(Sketcher.Constraint("Symmetric", 37, 3, 77, 3, -1, 1))
sketch3.addConstraint(Sketcher.Constraint("Symmetric", 38, 3, 78, 3, -1, 1))
sketch3.addConstraint(Sketcher.Constraint("Symmetric", 39, 3, 79, 3, -1, 1))
sketch3.addConstraint(Sketcher.Constraint("Symmetric", 30, 3, 50, 3, -2))
sketch3.addConstraint(Sketcher.Constraint("Symmetric", 31, 3, 51, 3, -2))
sketch3.addConstraint(Sketcher.Constraint("PointOnObject", 0, 3, -2))
sketch3.addConstraint(Sketcher.Constraint("PointOnObject", 1, 3, -2))
sketch3.addConstraint(Sketcher.Constraint("PointOnObject", 20, 3, -1))
sketch3.addConstraint(Sketcher.Constraint("PointOnObject", 21, 3, -1))
sketch3.addConstraint(Sketcher.Constraint("Diameter", 0, Q("10.3 mm")))
sketch3.addConstraint(Sketcher.Constraint("Diameter", 4, Q("6.3 mm")))
sketch3.addConstraint(Sketcher.Constraint("Diameter", 6, Q("5.3 mm")))
sketch3.addConstraint(Sketcher.Constraint("DistanceY", -1, 1, 0, 3, Q("167 mm")))
sketch3.addConstraint(Sketcher.Constraint("DistanceY", -1, 1, 1, 3, Q("132 mm")))
sketch3.addConstraint(Sketcher.Constraint("DistanceX", -1, 1, 20, 3, Q("167 mm")))
sketch3.addConstraint(Sketcher.Constraint("DistanceX", -1, 1, 21, 3, Q("132 mm")))
sketch3.addConstraint(Sketcher.Constraint("DistanceY", -1, 1, 5, 3, Q("130.463719 mm")))
sketch3.addConstraint(Sketcher.Constraint("DistanceX", 6, 3, -1, 1, Q("50.217869 mm")))
sketch3.addConstraint(Sketcher.Constraint("DistanceY", -1, 1, 6, 3, Q("159.270731 mm")))
sketch3.addConstraint(Sketcher.Constraint("DistanceY", -1, 1, 8, 3, Q("129.574788 mm")))
sketch3.addConstraint(Sketcher.Constraint("DistanceY", -1, 1, 9, 3, Q("163.93174 mm")))
sketch3.addConstraint(Sketcher.Constraint("DistanceX", -1, 1, 13, 3, Q("116.003859 mm")))
sketch3.addConstraint(Sketcher.Constraint("DistanceX", -1, 1, 14, 3, Q("98.748711 mm")))
sketch3.addConstraint(Sketcher.Constraint("DistanceY", -1, 1, 14, 3, Q("134.676249 mm")))
sketch3.addConstraint(Sketcher.Constraint("DistanceX", -1, 1, 16, 3, Q("77.112018 mm")))
sketch3.addConstraint(Sketcher.Constraint("DistanceY", -1, 1, 16, 3, Q("148.130809 mm")))
sketch3.addConstraint(Sketcher.Constraint("DistanceY", -1, 1, 17, 3, Q("117.08543 mm")))
sketch3.addConstraint(Sketcher.Constraint("DistanceX", -1, 1, 18, 3, Q("109.43296 mm")))
sketch3.addConstraint(Sketcher.Constraint("DistanceX", -1, 1, 25, 3, Q("130.463719 mm")))
sketch3.addConstraint(Sketcher.Constraint("DistanceX", -1, 1, 26, 3, Q("159.270731 mm")))
sketch3.addConstraint(Sketcher.Constraint("DistanceY", -1, 1, 26, 3, Q("50.217869 mm")))
sketch3.addConstraint(Sketcher.Constraint("DistanceX", -1, 1, 28, 3, Q("129.574788 mm")))
sketch3.addConstraint(Sketcher.Constraint("DistanceX", -1, 1, 29, 3, Q("163.93174 mm")))
sketch3.addConstraint(Sketcher.Constraint("DistanceY", 33, 3, -1, 1, Q("116.003859 mm")))
sketch3.addConstraint(Sketcher.Constraint("DistanceX", -1, 1, 34, 3, Q("134.676249 mm")))
sketch3.addConstraint(Sketcher.Constraint("DistanceY", 34, 3, -1, 1, Q("98.748711 mm")))
sketch3.addConstraint(Sketcher.Constraint("DistanceX", -1, 1, 36, 3, Q("148.130809 mm")))
sketch3.addConstraint(Sketcher.Constraint("DistanceY", 36, 3, -1, 1, Q("77.112018 mm")))
sketch3.addConstraint(Sketcher.Constraint("DistanceX", -1, 1, 37, 3, Q("117.08543 mm")))
sketch3.addConstraint(Sketcher.Constraint("DistanceY", 38, 3, -1, 1, Q("109.43296 mm")))
sketch3.addConstraint(Sketcher.Constraint("DistanceX", -1, 1, 2, 3, Q("47.430563 mm")))
sketch3.addConstraint(Sketcher.Constraint("DistanceY", -1, 1, 2, 3, Q("160.122896 mm")))
sketch3.addConstraint(Sketcher.Constraint("DistanceX", -1, 1, 3, 3, Q("37.490026 mm")))
sketch3.addConstraint(Sketcher.Constraint("DistanceY", -1, 1, 3, 3, Q("126.564205 mm")))
sketch3.addConstraint(Sketcher.Constraint("DistanceX", 4, 3, -1, 1, Q("25.404605 mm")))
sketch3.addConstraint(Sketcher.Constraint("DistanceY", -1, 1, 4, 3, Q("165.056372 mm")))
sketch3.addConstraint(Sketcher.Constraint("DistanceX", 5, 3, -1, 1, Q("20.080287 mm")))
sketch3.addConstraint(Sketcher.Constraint("DistanceX", 7, 3, -1, 1, Q("39.693166 mm")))
sketch3.addConstraint(Sketcher.Constraint("DistanceY", -1, 1, 7, 3, Q("125.890637 mm")))
sketch3.addConstraint(Sketcher.Constraint("DistanceX", -1, 1, 8, 3, Q("25.186787 mm")))
sketch3.addConstraint(Sketcher.Constraint("DistanceX", -1, 1, 9, 3, Q("31.865102 mm")))
sketch3.addConstraint(Sketcher.Constraint("DistanceX", -1, 1, 10, 3, Q("118.086832 mm")))
sketch3.addConstraint(Sketcher.Constraint("DistanceY", -1, 1, 10, 3, Q("118.086832 mm")))
sketch3.addConstraint(Sketcher.Constraint("DistanceX", -1, 1, 11, 3, Q("93.338095 mm")))
sketch3.addConstraint(Sketcher.Constraint("DistanceY", -1, 1, 11, 3, Q("93.338095 mm")))
sketch3.addConstraint(Sketcher.Constraint("DistanceX", -1, 1, 12, 3, Q("146.762458 mm")))
sketch3.addConstraint(Sketcher.Constraint("DistanceY", -1, 1, 12, 3, Q("79.685513 mm")))
sketch3.addConstraint(Sketcher.Constraint("DistanceY", -1, 1, 13, 3, Q("62.984956 mm")))
sketch3.addConstraint(Sketcher.Constraint("DistanceX", -1, 1, 15, 3, Q("78.052874 mm")))
sketch3.addConstraint(Sketcher.Constraint("DistanceY", -1, 1, 15, 3, Q("106.450688 mm")))
sketch3.addConstraint(Sketcher.Constraint("DistanceX", -1, 1, 17, 3, Q("60.950817 mm")))
sketch3.addConstraint(Sketcher.Constraint("DistanceY", -1, 1, 18, 3, Q("73.813463 mm")))
sketch3.addConstraint(Sketcher.Constraint("DistanceX", -1, 1, 19, 3, Q("138.449275 mm")))
sketch3.addConstraint(Sketcher.Constraint("DistanceY", -1, 1, 19, 3, Q("93.385215 mm")))
sketch3.addConstraint(Sketcher.Constraint("DistanceX", -1, 1, 22, 3, Q("160.122896 mm")))
sketch3.addConstraint(Sketcher.Constraint("DistanceY", 22, 3, -1, 1, Q("47.430563 mm")))
sketch3.addConstraint(Sketcher.Constraint("DistanceX", -1, 1, 23, 3, Q("126.564205 mm")))
sketch3.addConstraint(Sketcher.Constraint("DistanceY", 23, 3, -1, 1, Q("37.490026 mm")))
sketch3.addConstraint(Sketcher.Constraint("DistanceX", -1, 1, 24, 3, Q("165.056372 mm")))
sketch3.addConstraint(Sketcher.Constraint("DistanceY", -1, 1, 24, 3, Q("25.404605 mm")))
sketch3.addConstraint(Sketcher.Constraint("DistanceY", -1, 1, 25, 3, Q("20.080287 mm")))
sketch3.addConstraint(Sketcher.Constraint("DistanceX", -1, 1, 27, 3, Q("125.890637 mm")))
sketch3.addConstraint(Sketcher.Constraint("DistanceY", -1, 1, 27, 3, Q("39.693166 mm")))
sketch3.addConstraint(Sketcher.Constraint("DistanceY", 28, 3, -1, 1, Q("25.186787 mm")))
sketch3.addConstraint(Sketcher.Constraint("DistanceY", 29, 3, -1, 1, Q("31.865102 mm")))
sketch3.addConstraint(Sketcher.Constraint("DistanceX", -1, 1, 32, 3, Q("79.685513 mm")))
sketch3.addConstraint(Sketcher.Constraint("DistanceY", 32, 3, -1, 1, Q("146.762458 mm")))
sketch3.addConstraint(Sketcher.Constraint("DistanceX", -1, 1, 33, 3, Q("62.984956 mm")))
sketch3.addConstraint(Sketcher.Constraint("DistanceX", -1, 1, 35, 3, Q("106.450688 mm")))
sketch3.addConstraint(Sketcher.Constraint("DistanceY", 35, 3, -1, 1, Q("78.052874 mm")))
sketch3.addConstraint(Sketcher.Constraint("DistanceY", 37, 3, -1, 1, Q("60.950817 mm")))
sketch3.addConstraint(Sketcher.Constraint("DistanceX", -1, 1, 38, 3, Q("73.813463 mm")))
sketch3.addConstraint(Sketcher.Constraint("DistanceX", -1, 1, 39, 3, Q("93.385215 mm")))
sketch3.addConstraint(Sketcher.Constraint("DistanceY", 39, 3, -1, 1, Q("138.449275 mm")))
pocket2 = body.newObject("PartDesign::Pocket", "Pocket001")
pocket2.Profile = sketch3
pocket2.Length = 2

sketch4 = body.newObject("Sketcher::SketchObject", "Sketch003")
sketch4.AttachmentSupport = (doc.getObject("XY_Plane"), [""])
sketch4.MapMode = "FlatFace"
sketch4.AttachmentOffset = App.Placement(Vector(0, 0, 2), App.Rotation())
sketch4.addGeometry(Part.LineSegment(Vector(-24, 58, 0), Vector(24, 58, 0)), False)
sketch4.addGeometry(Part.LineSegment(Vector(24, 58, 0), Vector(24, 87, 0)), False)
sketch4.addGeometry(Part.ArcOfCircle(Part.Circle(Vector(0, 0, 0), Vector(0, 0, 1), 90), math.radians(74), math.radians(106)), False)
sketch4.addGeometry(Part.LineSegment(Vector(-24, 87, 0), Vector(-24, 58, 0)), False)
sketch4.addGeometry(Part.LineSegment(Vector(38, 50, 0), Vector(62, 8, 0)), False)
sketch4.addGeometry(Part.LineSegment(Vector(62, 8, 0), Vector(87, 22, 0)), False)
sketch4.addGeometry(Part.ArcOfCircle(Part.Circle(Vector(0, 0, 0), Vector(0, 0, 1), 90), math.radians(14), math.radians(46)), False)
sketch4.addGeometry(Part.LineSegment(Vector(63, 65, 0), Vector(38, 50, 0)), False)
sketch4.addGeometry(Part.LineSegment(Vector(62, -8, 0), Vector(38, -50, 0)), False)
sketch4.addGeometry(Part.LineSegment(Vector(38, -50, 0), Vector(63, -65, 0)), False)
sketch4.addGeometry(Part.ArcOfCircle(Part.Circle(Vector(0, 0, 0), Vector(0, 0, 1), 90), math.radians(-46), math.radians(-14)), False)
sketch4.addGeometry(Part.LineSegment(Vector(87, -22, 0), Vector(62, -8, 0)), False)
sketch4.addGeometry(Part.LineSegment(Vector(24, -58, 0), Vector(-24, -58, 0)), False)
sketch4.addGeometry(Part.LineSegment(Vector(-24, -58, 0), Vector(-24, -87, 0)), False)
sketch4.addGeometry(Part.ArcOfCircle(Part.Circle(Vector(0, 0, 0), Vector(0, 0, 1), 90), math.radians(-106), math.radians(-74)), False)
sketch4.addGeometry(Part.LineSegment(Vector(24, -87, 0), Vector(24, -58, 0)), False)
sketch4.addGeometry(Part.LineSegment(Vector(-38, -50, 0), Vector(-62, -8, 0)), False)
sketch4.addGeometry(Part.LineSegment(Vector(-62, -8, 0), Vector(-87, -22, 0)), False)
sketch4.addGeometry(Part.ArcOfCircle(Part.Circle(Vector(0, 0, 0), Vector(0, 0, 1), 90), math.radians(-166), math.radians(-134)), False)
sketch4.addGeometry(Part.LineSegment(Vector(-63, -65, 0), Vector(-38, -50, 0)), False)
sketch4.addGeometry(Part.LineSegment(Vector(-62, 8, 0), Vector(-38, 50, 0)), False)
sketch4.addGeometry(Part.LineSegment(Vector(-38, 50, 0), Vector(-63, 65, 0)), False)
sketch4.addGeometry(Part.ArcOfCircle(Part.Circle(Vector(0, 0, 0), Vector(0, 0, 1), 90), math.radians(134), math.radians(166)), False)
sketch4.addGeometry(Part.LineSegment(Vector(-87, 22, 0), Vector(-62, 8, 0)), False)
sketch4.addConstraint(Sketcher.Constraint("Coincident", 0, 2, 1, 1))
sketch4.addConstraint(Sketcher.Constraint("Coincident", 1, 2, 2, 1))
sketch4.addConstraint(Sketcher.Constraint("Coincident", 2, 2, 3, 1))
sketch4.addConstraint(Sketcher.Constraint("Coincident", 3, 2, 0, 1))
sketch4.addConstraint(Sketcher.Constraint("Coincident", 4, 2, 5, 1))
sketch4.addConstraint(Sketcher.Constraint("Coincident", 5, 2, 6, 1))
sketch4.addConstraint(Sketcher.Constraint("Coincident", 6, 2, 7, 1))
sketch4.addConstraint(Sketcher.Constraint("Coincident", 7, 2, 4, 1))
sketch4.addConstraint(Sketcher.Constraint("Coincident", 8, 2, 9, 1))
sketch4.addConstraint(Sketcher.Constraint("Coincident", 9, 2, 10, 1))
sketch4.addConstraint(Sketcher.Constraint("Coincident", 10, 2, 11, 1))
sketch4.addConstraint(Sketcher.Constraint("Coincident", 11, 2, 8, 1))
sketch4.addConstraint(Sketcher.Constraint("Coincident", 12, 2, 13, 1))
sketch4.addConstraint(Sketcher.Constraint("Coincident", 13, 2, 14, 1))
sketch4.addConstraint(Sketcher.Constraint("Coincident", 14, 2, 15, 1))
sketch4.addConstraint(Sketcher.Constraint("Coincident", 15, 2, 12, 1))
sketch4.addConstraint(Sketcher.Constraint("Coincident", 16, 2, 17, 1))
sketch4.addConstraint(Sketcher.Constraint("Coincident", 17, 2, 18, 1))
sketch4.addConstraint(Sketcher.Constraint("Coincident", 18, 2, 19, 1))
sketch4.addConstraint(Sketcher.Constraint("Coincident", 19, 2, 16, 1))
sketch4.addConstraint(Sketcher.Constraint("Coincident", 20, 2, 21, 1))
sketch4.addConstraint(Sketcher.Constraint("Coincident", 21, 2, 22, 1))
sketch4.addConstraint(Sketcher.Constraint("Coincident", 22, 2, 23, 1))
sketch4.addConstraint(Sketcher.Constraint("Coincident", 23, 2, 20, 1))
sketch4.addConstraint(Sketcher.Constraint("Horizontal", 0))
sketch4.addConstraint(Sketcher.Constraint("Vertical", 1))
sketch4.addConstraint(Sketcher.Constraint("Vertical", 3))
sketch4.addConstraint(Sketcher.Constraint("Horizontal", 12))
sketch4.addConstraint(Sketcher.Constraint("Vertical", 13))
sketch4.addConstraint(Sketcher.Constraint("Vertical", 15))
sketch4.addConstraint(Sketcher.Constraint("Coincident", 2, 3, -1, 1))
sketch4.addConstraint(Sketcher.Constraint("Coincident", 6, 3, -1, 1))
sketch4.addConstraint(Sketcher.Constraint("Coincident", 10, 3, -1, 1))
sketch4.addConstraint(Sketcher.Constraint("Coincident", 14, 3, -1, 1))
sketch4.addConstraint(Sketcher.Constraint("Coincident", 18, 3, -1, 1))
sketch4.addConstraint(Sketcher.Constraint("Coincident", 22, 3, -1, 1))
sketch4.addConstraint(Sketcher.Constraint("Equal", 2, 6))
sketch4.addConstraint(Sketcher.Constraint("Equal", 6, 10))
sketch4.addConstraint(Sketcher.Constraint("Equal", 10, 14))
sketch4.addConstraint(Sketcher.Constraint("Equal", 14, 18))
sketch4.addConstraint(Sketcher.Constraint("Equal", 18, 22))
sketch4.addConstraint(Sketcher.Constraint("Symmetric", 0, 2, 12, 2, -1, 1))
sketch4.addConstraint(Sketcher.Constraint("Symmetric", 4, 2, 16, 2, -1, 1))
sketch4.addConstraint(Sketcher.Constraint("Symmetric", 7, 2, 19, 2, -1, 1))
sketch4.addConstraint(Sketcher.Constraint("Symmetric", 8, 2, 20, 2, -1, 1))
sketch4.addConstraint(Sketcher.Constraint("Symmetric", 11, 2, 23, 2, -1, 1))
sketch4.addConstraint(Sketcher.Constraint("Symmetric", 11, 2, 16, 2, -2))
sketch4.addConstraint(Sketcher.Constraint("Symmetric", 8, 2, 19, 2, -2))
sketch4.addConstraint(Sketcher.Constraint("Perpendicular", 4, 5))
sketch4.addConstraint(Sketcher.Constraint("Parallel", 5, 7))
sketch4.addConstraint(Sketcher.Constraint("Perpendicular", 8, 9))
sketch4.addConstraint(Sketcher.Constraint("Parallel", 9, 11))
sketch4.addConstraint(Sketcher.Constraint("Perpendicular", 16, 17))
sketch4.addConstraint(Sketcher.Constraint("Parallel", 17, 19))
sketch4.addConstraint(Sketcher.Constraint("Perpendicular", 20, 21))
sketch4.addConstraint(Sketcher.Constraint("Parallel", 21, 23))
sketch4.addConstraint(Sketcher.Constraint("Horizontal", 1, 2, 2, 2))
sketch4.addConstraint(Sketcher.Constraint("Horizontal", 13, 2, 14, 2))
sketch4.addConstraint(Sketcher.Constraint("Equal", 5, 7))
sketch4.addConstraint(Sketcher.Constraint("Radius", 2, Q("90 mm")))
sketch4.addConstraint(Sketcher.Constraint("DistanceX", 0, 1, 0, 2, Q("49 mm")))
sketch4.addConstraint(Sketcher.Constraint("Angle", 4, Q("-60 deg")))
sketch4.addConstraint(Sketcher.Constraint("Distance", 4, Q("49 mm")))
sketch4.addConstraint(Sketcher.Constraint("DistanceY", -1, 1, 0, 2, Q("58 mm")))
sketch4.addConstraint(Sketcher.Constraint("DistanceY", 8, 2, 4, 2, Q("58 mm")))
pocket3 = body.newObject("PartDesign::Pocket", "Pocket002")
pocket3.Profile = sketch4
pocket3.Length = 2

sketch5 = body.newObject("Sketcher::SketchObject", "Sketch004")
sketch5.AttachmentSupport = (doc.getObject("XY_Plane"), [""])
sketch5.MapMode = "FlatFace"
sketch5.AttachmentOffset = App.Placement(Vector(0, 0, 2), App.Rotation())
sketch5.addGeometry(Part.Circle(Vector(43, 74.5, 0), Vector(0, 0, 1), 3.2), False)
sketch5.addGeometry(Part.Circle(Vector(86, 0, 0), Vector(0, 0, 1), 3.2), False)
sketch5.addGeometry(Part.Circle(Vector(43, -74.5, 0), Vector(0, 0, 1), 3.2), False)
sketch5.addGeometry(Part.Circle(Vector(-43, -74.5, 0), Vector(0, 0, 1), 3.2), False)
sketch5.addGeometry(Part.Circle(Vector(-86, 0, 0), Vector(0, 0, 1), 3.2), False)
sketch5.addGeometry(Part.Circle(Vector(-43, 74.5, 0), Vector(0, 0, 1), 3.2), False)
sketch5.addConstraint(Sketcher.Constraint("Equal", 0, 1))
sketch5.addConstraint(Sketcher.Constraint("Equal", 1, 2))
sketch5.addConstraint(Sketcher.Constraint("Equal", 2, 3))
sketch5.addConstraint(Sketcher.Constraint("Equal", 3, 4))
sketch5.addConstraint(Sketcher.Constraint("Equal", 4, 5))
sketch5.addConstraint(Sketcher.Constraint("Symmetric", 0, 3, 3, 3, -1, 1))
sketch5.addConstraint(Sketcher.Constraint("Symmetric", 1, 3, 4, 3, -1, 1))
sketch5.addConstraint(Sketcher.Constraint("Symmetric", 2, 3, 5, 3, -1, 1))
sketch5.addConstraint(Sketcher.Constraint("Symmetric", 2, 3, 3, 3, -2))
sketch5.addConstraint(Sketcher.Constraint("PointOnObject", 1, 3, -1))
sketch5.addConstraint(Sketcher.Constraint("Diameter", 0, Q("6.5 mm")))
sketch5.addConstraint(Sketcher.Constraint("DistanceX", -1, 1, 0, 3, Q("43 mm")))
sketch5.addConstraint(Sketcher.Constraint("DistanceX", -1, 1, 1, 3, Q("86 mm")))
sketch5.addConstraint(Sketcher.Constraint("DistanceY", 2, 3, 0, 3, Q("148.956369 mm")))
pocket4 = body.newObject("PartDesign::Pocket", "Pocket003")
pocket4.Profile = sketch5
pocket4.Length = 2
doc.recompute()

fillet = body.newObject("PartDesign::Fillet", "Fillet")
fillet.Base = (pocket4, edges_at(pocket4, [
    (-24.5, 86.601, 1),
    (24.5, 86.601, 1),
    (24.5, 58, 1),
    (-24.5, 58, 1),
    (62.749, 64.518, 1),
    (87.249, 22.083, 1),
    (62.479, 7.782, 1),
    (37.979, 50.218, 1),
    (87.249, -22.083, 1),
    (62.749, -64.518, 1),
    (37.979, -50.218, 1),
    (62.479, -7.782, 1),
    (24.5, -86.601, 1),
    (-24.5, -86.601, 1),
    (-24.5, -58, 1),
    (24.5, -58, 1),
    (-62.749, -64.518, 1),
    (-87.249, -22.083, 1),
    (-62.479, -7.782, 1),
    (-37.979, -50.218, 1),
    (-87.249, 22.083, 1),
    (-62.749, 64.518, 1),
    (-37.979, 50.218, 1),
    (-62.479, 7.782, 1),
]))
fillet.Radius = 1

doc.recompute()
